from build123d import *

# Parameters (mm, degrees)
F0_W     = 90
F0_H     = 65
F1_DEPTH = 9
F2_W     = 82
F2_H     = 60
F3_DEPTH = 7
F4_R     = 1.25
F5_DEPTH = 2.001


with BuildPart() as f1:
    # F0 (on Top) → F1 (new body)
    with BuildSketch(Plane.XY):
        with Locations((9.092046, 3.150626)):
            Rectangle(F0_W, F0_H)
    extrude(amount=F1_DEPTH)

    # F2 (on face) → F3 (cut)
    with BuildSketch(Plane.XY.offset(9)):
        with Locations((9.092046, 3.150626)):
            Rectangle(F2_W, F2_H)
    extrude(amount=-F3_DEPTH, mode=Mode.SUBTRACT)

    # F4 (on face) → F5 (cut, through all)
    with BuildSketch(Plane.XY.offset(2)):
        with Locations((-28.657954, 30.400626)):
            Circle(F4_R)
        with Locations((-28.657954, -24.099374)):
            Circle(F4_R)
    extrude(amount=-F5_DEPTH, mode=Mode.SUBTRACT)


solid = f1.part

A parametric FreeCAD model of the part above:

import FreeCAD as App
import Part
import Sketcher
Q = App.Units.Quantity


def add_polygon(sketch, points):
    """Adds a closed chain of lines whose ends are joined by coincident constraints."""
    first, n = sketch.GeometryCount, len(points)
    for a, b in zip(points, points[1:] + points[:1]):
        sketch.addGeometry(Part.LineSegment(App.Vector(*a, 0), App.Vector(*b, 0)), False)
    for i in range(n):
        sketch.addConstraint(Sketcher.Constraint("Coincident", first + i, 2, first + (i + 1) % n, 1))

doc = App.newDocument("Part")
params = doc.addObject("Spreadsheet::Sheet", "Params")
for row, (alias, value) in enumerate([
    ("sketch1_width", "90 mm"),
    ("sketch1_height", "65 mm"),
    ("pad1_length", "9 mm"),
    ("sketch2_width", "82 mm"),
    ("sketch2_height", "60 mm"),
    ("pocket1_length", "7 mm"),
    ("sketch3_diameter", "2.5 mm"),
], start=1):
    params.set(f"A{row}", alias)
    params.set(f"B{row}", "=" + value)
    params.setAlias(f"B{row}", alias)

body = doc.addObject("PartDesign::Body", "Body")

sketch1 = body.newObject("Sketcher::SketchObject", "Sketch")
sketch1.AttachmentSupport = (doc.getObject("XY_Plane"), [""])
sketch1.MapMode = "FlatFace"
add_polygon(sketch1, [(-35.907954, 35.650626), (-35.907954, -29.349374), (54.092046, -29.349374), (54.092046, 35.650626)])
sketch1.addConstraint([
    Sketcher.Constraint("Vertical", 0),
    Sketcher.Constraint("Horizontal", 1),
    Sketcher.Constraint("Vertical", 2),
    Sketcher.Constraint("Horizontal", 3),
    Sketcher.Constraint("DistanceX", 1, 1, 1, 2, Q("90 mm")),
    Sketcher.Constraint("DistanceY", 0, 2, 0, 1, Q("65 mm")),
    Sketcher.Constraint("DistanceX", 0, 2, -1, 1, Q("35.907954 mm")),
    Sketcher.Constraint("DistanceY", 0, 2, -1, 1, Q("29.349374 mm")),
])
sketch1.setExpression("Constraints[8]", "Params.sketch1_width")
sketch1.setExpression("Constraints[9]", "Params.sketch1_height")
pad1 = body.newObject("PartDesign::Pad", "Pad")
pad1.Profile = sketch1
pad1.setExpression("Length", "Params.pad1_length")

sketch2 = body.newObject("Sketcher::SketchObject", "Sketch001")
sketch2.AttachmentSupport = (doc.getObject("XY_Plane"), [""])
sketch2.MapMode = "FlatFace"
sketch2.AttachmentOffset = App.Placement(App.Vector(0, 0, 9), App.Rotation())
add_polygon(sketch2, [(-31.907954, 33.150626), (-31.907954, -26.849374), (50.092046, -26.849374), (50.092046, 33.150626)])
sketch2.addConstraint([
    Sketcher.Constraint("Vertical", 0),
    Sketcher.Constraint("Horizontal", 1),
    Sketcher.Constraint("Vertical", 2),
    Sketcher.Constraint("Horizontal", 3),
    Sketcher.Constraint("DistanceX", 1, 1, 1, 2, Q("82 mm")),
    Sketcher.Constraint("DistanceY", 0, 2, 0, 1, Q("60 mm")),
    Sketcher.Constraint("DistanceX", 0, 2, -1, 1, Q("31.907954 mm")),
    Sketcher.Constraint("DistanceY", 0, 2, -1, 1, Q("26.849374 mm")),
])
sketch2.setExpression("Constraints[8]", "Params.sketch2_width")
sketch2.setExpression("Constraints[9]", "Params.sketch2_height")
pocket1 = body.newObject("PartDesign::Pocket", "Pocket")
pocket1.Profile = sketch2
pocket1.setExpression("Length", "Params.pocket1_length")

sketch3 = body.newObject("Sketcher::SketchObject", "Sketch002")
sketch3.AttachmentSupport = (doc.getObject("XY_Plane"), [""])
sketch3.MapMode = "FlatFace"
sketch3.AttachmentOffset = App.Placement(App.Vector(0, 0, 2), App.Rotation())
sketch3.addGeometry([
    Part.Circle(App.Vector(-28.657954, 30.400626, 0), App.Vector(0, 0, 1), 1.25),
    Part.Circle(App.Vector(-28.657954, -24.099374, 0), App.Vector(0, 0, 1), 1.25),
], False)
sketch3.addConstraint([
    Sketcher.Constraint("Equal", 0, 1),
    Sketcher.Constraint("Vertical", 0, 3, 1, 3),
    Sketcher.Constraint("Diameter", 0, Q("2.5 mm")),
    Sketcher.Constraint("DistanceY", 1, 3, 0, 3, Q("54.5 mm")),
    Sketcher.Constraint("DistanceX", 0, 3, -1, 1, Q("28.657954 mm")),
    Sketcher.Constraint("DistanceY", -1, 1, 0, 3, Q("30.400626 mm")),
])
sketch3.setExpression("Constraints[2]", "Params.sketch3_diameter")
pocket2 = body.newObject("PartDesign::Pocket", "Pocket001")
pocket2.Profile = sketch3
pocket2.Type = "ThroughAll"

doc.recompute()
